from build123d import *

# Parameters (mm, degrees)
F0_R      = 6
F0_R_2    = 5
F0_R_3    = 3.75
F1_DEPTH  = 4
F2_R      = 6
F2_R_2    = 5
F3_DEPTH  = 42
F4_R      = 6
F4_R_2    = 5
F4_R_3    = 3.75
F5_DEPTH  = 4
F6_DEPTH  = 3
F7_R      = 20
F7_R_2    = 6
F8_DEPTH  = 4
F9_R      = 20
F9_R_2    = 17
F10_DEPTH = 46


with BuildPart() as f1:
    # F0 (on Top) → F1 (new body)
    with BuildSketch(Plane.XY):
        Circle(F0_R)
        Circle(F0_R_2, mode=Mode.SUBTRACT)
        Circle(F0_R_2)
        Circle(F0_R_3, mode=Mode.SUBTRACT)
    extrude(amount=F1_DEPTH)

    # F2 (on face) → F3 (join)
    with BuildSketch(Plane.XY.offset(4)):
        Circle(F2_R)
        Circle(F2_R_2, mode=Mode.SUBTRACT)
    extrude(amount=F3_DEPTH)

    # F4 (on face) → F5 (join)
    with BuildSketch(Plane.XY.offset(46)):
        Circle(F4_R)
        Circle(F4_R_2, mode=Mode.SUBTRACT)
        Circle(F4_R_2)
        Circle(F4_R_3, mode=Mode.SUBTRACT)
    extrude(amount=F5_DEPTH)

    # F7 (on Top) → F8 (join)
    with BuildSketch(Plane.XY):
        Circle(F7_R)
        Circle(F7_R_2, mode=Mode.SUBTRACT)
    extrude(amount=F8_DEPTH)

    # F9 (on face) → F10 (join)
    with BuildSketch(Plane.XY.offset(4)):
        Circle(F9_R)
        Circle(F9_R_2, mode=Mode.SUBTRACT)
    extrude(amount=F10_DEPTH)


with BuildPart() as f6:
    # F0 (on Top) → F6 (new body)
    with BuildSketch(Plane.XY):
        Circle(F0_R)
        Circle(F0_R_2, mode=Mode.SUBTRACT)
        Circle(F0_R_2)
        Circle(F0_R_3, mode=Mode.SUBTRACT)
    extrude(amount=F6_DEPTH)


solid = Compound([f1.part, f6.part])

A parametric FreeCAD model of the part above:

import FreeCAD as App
import Part
import Sketcher
Q = App.Units.Quantity

doc = App.newDocument("Part")
body = doc.addObject("PartDesign::Body", "Body")

# Sketch on XY plane
sketch1 = body.newObject("Sketcher::SketchObject", "Sketch")
sketch1.AttachmentSupport = (doc.getObject("XY_Plane"), [""])
sketch1.MapMode = "FlatFace"
sketch1.addGeometry([
    Part.Circle(App.Vector(0, 0, 0), App.Vector(0, 0, 1), 6),
    Part.Circle(App.Vector(0, 0, 0), App.Vector(0, 0, 1), 3.8),
], False)
sketch1.addConstraint([
    Sketcher.Constraint("Coincident", 0, 3, -1, 1),
    Sketcher.Constraint("Coincident", 1, 3, -1, 1),
    Sketcher.Constraint("Diameter", 0, Q("12 mm")),
    Sketcher.Constraint("Diameter", 1, Q("7.5 mm")),
])
pad1 = body.newObject("PartDesign::Pad", "Pad")
pad1.Profile = sketch1
pad1.Length = 4

# Sketch on XY plane
sketch2 = body.newObject("Sketcher::SketchObject", "Sketch001")
sketch2.AttachmentSupport = (doc.getObject("XY_Plane"), [""])
sketch2.MapMode = "FlatFace"
sketch2.AttachmentOffset = App.Placement(App.Vector(0, 0, 4), App.Rotation())
sketch2.addGeometry([
    Part.Circle(App.Vector(0, 0, 0), App.Vector(0, 0, 1), 6),
    Part.Circle(App.Vector(0, 0, 0), App.Vector(0, 0, 1), 5),
], False)
sketch2.addConstraint([
    Sketcher.Constraint("Coincident", 0, 3, -1, 1),
    Sketcher.Constraint("Coincident", 1, 3, -1, 1),
    Sketcher.Constraint("Diameter", 0, Q("12 mm")),
    Sketcher.Constraint("Diameter", 1, Q("10 mm")),
])
pad2 = body.newObject("PartDesign::Pad", "Pad001")
pad2.Profile = sketch2
pad2.Length = 42

# Sketch on XY plane
sketch3 = body.newObject("Sketcher::SketchObject", "Sketch002")
sketch3.AttachmentSupport = (doc.getObject("XY_Plane"), [""])
sketch3.MapMode = "FlatFace"
sketch3.AttachmentOffset = App.Placement(App.Vector(0, 0, 46), App.Rotation())
sketch3.addGeometry([
    Part.Circle(App.Vector(0, 0, 0), App.Vector(0, 0, 1), 6),
    Part.Circle(App.Vector(0, 0, 0), App.Vector(0, 0, 1), 3.8),
], False)
sketch3.addConstraint([
    Sketcher.Constraint("Coincident", 0, 3, -1, 1),
    Sketcher.Constraint("Coincident", 1, 3, -1, 1),
    Sketcher.Constraint("Diameter", 0, Q("12 mm")),
    Sketcher.Constraint("Diameter", 1, Q("7.5 mm")),
])
pad3 = body.newObject("PartDesign::Pad", "Pad002")
pad3.Profile = sketch3
pad3.Length = 4

# Sketch on XY plane
sketch4 = body.newObject("Sketcher::SketchObject", "Sketch003")
sketch4.AttachmentSupport = (doc.getObject("XY_Plane"), [""])
sketch4.MapMode = "FlatFace"
sketch4.addGeometry([
    Part.Circle(App.Vector(0, 0, 0), App.Vector(0, 0, 1), 20),
    Part.Circle(App.Vector(0, 0, 0), App.Vector(0, 0, 1), 6),
], False)
sketch4.addConstraint([
    Sketcher.Constraint("Coincident", 0, 3, -1, 1),
    Sketcher.Constraint("Coincident", 1, 3, -1, 1),
    Sketcher.Constraint("Diameter", 0, Q("40 mm")),
    Sketcher.Constraint("Diameter", 1, Q("12 mm")),
])
pad4 = body.newObject("PartDesign::Pad", "Pad003")
pad4.Profile = sketch4
pad4.Length = 4

# Sketch on XY plane
sketch5 = body.newObject("Sketcher::SketchObject", "Sketch004")
sketch5.AttachmentSupport = (doc.getObject("XY_Plane"), [""])
sketch5.MapMode = "FlatFace"
sketch5.AttachmentOffset = App.Placement(App.Vector(0, 0, 4), App.Rotation())
sketch5.addGeometry([
    Part.Circle(App.Vector(0, 0, 0), App.Vector(0, 0, 1), 20),
    Part.Circle(App.Vector(0, 0, 0), App.Vector(0, 0, 1), 17),
], False)
sketch5.addConstraint([
    Sketcher.Constraint("Coincident", 0, 3, -1, 1),
    Sketcher.Constraint("Coincident", 1, 3, -1, 1),
    Sketcher.Constraint("Diameter", 0, Q("40 mm")),
    Sketcher.Constraint("Diameter", 1, Q("34 mm")),
])
pad5 = body.newObject("PartDesign::Pad", "Pad004")
pad5.Profile = sketch5
pad5.Length = 46
body2 = doc.addObject("PartDesign::Body", "Body001")

# Sketch on XY plane
sketch6 = body2.newObject("Sketcher::SketchObject", "Sketch005")
sketch6.AttachmentSupport = (doc.getObject("XY_Plane001"), [""])
sketch6.MapMode = "FlatFace"
sketch6.addGeometry([
    Part.Circle(App.Vector(0, 0, 0), App.Vector(0, 0, 1), 6),
    Part.Circle(App.Vector(0, 0, 0), App.Vector(0, 0, 1), 3.8),
], False)
sketch6.addConstraint([
    Sketcher.Constraint("Coincident", 0, 3, -1, 1),
    Sketcher.Constraint("Coincident", 1, 3, -1, 1),
    Sketcher.Constraint("Diameter", 0, Q("12 mm")),
    Sketcher.Constraint("Diameter", 1, Q("7.5 mm")),
])
pad6 = body2.newObject("PartDesign::Pad", "Pad005")
pad6.Profile = sketch6
pad6.Length = 3

doc.recompute()
